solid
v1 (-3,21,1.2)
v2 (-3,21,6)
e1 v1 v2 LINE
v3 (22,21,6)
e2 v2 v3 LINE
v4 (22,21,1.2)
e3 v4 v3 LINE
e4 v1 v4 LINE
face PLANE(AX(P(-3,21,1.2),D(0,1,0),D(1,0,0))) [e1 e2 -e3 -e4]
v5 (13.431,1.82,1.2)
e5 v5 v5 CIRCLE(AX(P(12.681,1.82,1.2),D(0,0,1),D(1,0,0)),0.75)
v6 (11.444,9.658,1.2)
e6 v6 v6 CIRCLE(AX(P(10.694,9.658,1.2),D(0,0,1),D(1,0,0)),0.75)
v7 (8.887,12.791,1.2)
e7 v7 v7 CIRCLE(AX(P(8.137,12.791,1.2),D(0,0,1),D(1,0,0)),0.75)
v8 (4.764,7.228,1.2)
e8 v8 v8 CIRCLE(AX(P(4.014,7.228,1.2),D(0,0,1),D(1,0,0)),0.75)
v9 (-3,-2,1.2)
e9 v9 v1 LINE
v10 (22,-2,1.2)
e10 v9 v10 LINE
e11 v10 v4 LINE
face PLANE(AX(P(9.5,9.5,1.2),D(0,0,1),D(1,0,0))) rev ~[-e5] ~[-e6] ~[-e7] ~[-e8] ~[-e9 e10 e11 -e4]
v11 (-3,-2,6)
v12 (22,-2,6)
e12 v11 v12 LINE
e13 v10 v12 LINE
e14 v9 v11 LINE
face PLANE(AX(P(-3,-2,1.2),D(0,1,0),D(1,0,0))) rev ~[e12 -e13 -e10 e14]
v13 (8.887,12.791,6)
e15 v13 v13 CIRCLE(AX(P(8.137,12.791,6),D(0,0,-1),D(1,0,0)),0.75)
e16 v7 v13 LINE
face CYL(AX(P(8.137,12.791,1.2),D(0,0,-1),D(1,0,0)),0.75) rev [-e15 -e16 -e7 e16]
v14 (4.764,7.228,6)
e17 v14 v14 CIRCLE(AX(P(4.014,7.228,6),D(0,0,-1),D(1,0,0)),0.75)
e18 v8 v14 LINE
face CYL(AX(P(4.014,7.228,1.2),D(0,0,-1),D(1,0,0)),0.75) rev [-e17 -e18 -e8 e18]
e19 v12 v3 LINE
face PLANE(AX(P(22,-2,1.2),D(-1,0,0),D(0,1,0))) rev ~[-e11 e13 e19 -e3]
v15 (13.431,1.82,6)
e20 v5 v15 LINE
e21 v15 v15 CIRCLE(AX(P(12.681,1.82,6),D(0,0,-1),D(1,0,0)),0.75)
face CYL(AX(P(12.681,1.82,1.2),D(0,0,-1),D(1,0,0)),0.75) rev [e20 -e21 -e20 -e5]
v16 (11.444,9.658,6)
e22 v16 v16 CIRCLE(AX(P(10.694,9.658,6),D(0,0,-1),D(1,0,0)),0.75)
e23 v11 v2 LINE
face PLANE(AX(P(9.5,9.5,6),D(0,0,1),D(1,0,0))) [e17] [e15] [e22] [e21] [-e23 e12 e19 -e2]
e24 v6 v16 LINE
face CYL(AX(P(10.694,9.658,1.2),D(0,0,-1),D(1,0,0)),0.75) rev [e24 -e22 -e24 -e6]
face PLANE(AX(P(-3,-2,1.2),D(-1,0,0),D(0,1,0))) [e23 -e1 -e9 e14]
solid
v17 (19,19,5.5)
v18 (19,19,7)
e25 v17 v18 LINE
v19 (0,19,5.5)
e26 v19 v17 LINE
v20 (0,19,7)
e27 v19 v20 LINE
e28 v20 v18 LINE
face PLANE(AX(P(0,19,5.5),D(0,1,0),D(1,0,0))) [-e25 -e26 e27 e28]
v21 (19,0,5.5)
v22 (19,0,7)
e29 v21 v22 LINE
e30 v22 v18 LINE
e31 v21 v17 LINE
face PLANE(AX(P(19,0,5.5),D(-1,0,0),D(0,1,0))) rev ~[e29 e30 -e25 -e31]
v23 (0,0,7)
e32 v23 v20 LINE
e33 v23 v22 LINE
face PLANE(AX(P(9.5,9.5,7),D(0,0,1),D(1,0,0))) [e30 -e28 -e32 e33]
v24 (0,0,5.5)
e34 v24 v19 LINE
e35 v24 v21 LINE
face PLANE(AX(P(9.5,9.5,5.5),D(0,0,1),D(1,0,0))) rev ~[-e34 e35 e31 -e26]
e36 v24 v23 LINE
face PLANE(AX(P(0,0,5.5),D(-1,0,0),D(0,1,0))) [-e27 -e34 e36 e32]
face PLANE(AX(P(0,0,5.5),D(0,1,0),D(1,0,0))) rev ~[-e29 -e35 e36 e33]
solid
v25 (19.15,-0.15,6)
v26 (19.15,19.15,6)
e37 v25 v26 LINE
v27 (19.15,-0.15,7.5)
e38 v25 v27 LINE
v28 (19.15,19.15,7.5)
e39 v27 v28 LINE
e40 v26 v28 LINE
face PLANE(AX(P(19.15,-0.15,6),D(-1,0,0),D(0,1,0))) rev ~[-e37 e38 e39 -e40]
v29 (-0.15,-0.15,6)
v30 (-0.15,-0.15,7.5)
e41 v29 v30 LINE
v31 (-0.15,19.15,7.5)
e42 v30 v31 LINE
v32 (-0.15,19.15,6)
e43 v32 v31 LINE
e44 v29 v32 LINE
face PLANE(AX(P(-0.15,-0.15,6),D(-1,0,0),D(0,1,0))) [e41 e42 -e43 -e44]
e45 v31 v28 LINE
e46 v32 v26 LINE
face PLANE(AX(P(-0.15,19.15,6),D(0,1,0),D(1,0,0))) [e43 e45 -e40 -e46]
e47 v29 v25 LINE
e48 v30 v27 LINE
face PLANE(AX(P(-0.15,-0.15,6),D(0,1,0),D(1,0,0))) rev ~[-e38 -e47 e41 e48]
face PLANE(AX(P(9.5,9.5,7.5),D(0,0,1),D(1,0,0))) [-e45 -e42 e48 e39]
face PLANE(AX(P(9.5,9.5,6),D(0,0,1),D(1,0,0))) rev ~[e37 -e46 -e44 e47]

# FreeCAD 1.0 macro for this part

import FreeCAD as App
import Part
import Sketcher

V = App.Vector
Q = App.Units.Quantity


def add_polygon(sketch, points):
    """Adds a closed chain of lines whose ends are joined by coincident constraints."""
    first, n = sketch.GeometryCount, len(points)
    for a, b in zip(points, points[1:] + points[:1]):
        sketch.addGeometry(Part.LineSegment(App.Vector(*a, 0), App.Vector(*b, 0)), False)
    for i in range(n):
        sketch.addConstraint(Sketcher.Constraint("Coincident", first + i, 2, first + (i + 1) % n, 1))

doc = App.newDocument("Part")
body = doc.addObject("PartDesign::Body", "Body")

# Sketch on XY plane
sketch1 = body.newObject("Sketcher::SketchObject", "Sketch")
sketch1.AttachmentSupport = (doc.getObject("XY_Plane"), [""])
sketch1.MapMode = "FlatFace"
sketch1.AttachmentOffset = App.Placement(V(0, 0, 5.5), App.Rotation())
add_polygon(sketch1, [(0, 19), (0, 0), (19, 0), (19, 19)])  # lines 0-3
sketch1.addConstraint([
    Sketcher.Constraint("Vertical", 0),
    Sketcher.Constraint("Horizontal", 1),
    Sketcher.Constraint("Vertical", 2),
    Sketcher.Constraint("Horizontal", 3),
    Sketcher.Constraint("Coincident", 0, 2, -1, 1),
    Sketcher.Constraint("Equal", 3, 0),
    Sketcher.Constraint("DistanceX", 1, 1, 1, 2, Q("19 mm")),
])
pad1 = body.newObject("PartDesign::Pad", "Pad")
pad1.Profile = sketch1
pad1.Length = 1.5
body2 = doc.addObject("PartDesign::Body", "Body001")

# Sketch on XY plane
sketch2 = body2.newObject("Sketcher::SketchObject", "Sketch001")
sketch2.AttachmentSupport = (doc.getObject("XY_Plane001"), [""])
sketch2.MapMode = "FlatFace"
sketch2.AttachmentOffset = App.Placement(V(0, 0, 6), App.Rotation())
add_polygon(sketch2, [(0, 19), (0, 0), (19, 0), (19, 19)])  # lines 0-3
sketch2.addConstraint([
    Sketcher.Constraint("Vertical", 0),
    Sketcher.Constraint("Horizontal", 1),
    Sketcher.Constraint("Vertical", 2),
    Sketcher.Constraint("Horizontal", 3),
    Sketcher.Constraint("Equal", 3, 0),
    Sketcher.Constraint("DistanceX", 1, 1, 1, 2, Q("19.3 mm")),
    Sketcher.Constraint("DistanceX", 0, 2, -1, 1, Q("0.15 mm")),
    Sketcher.Constraint("DistanceY", 0, 2, -1, 1, Q("0.15 mm")),
])
pad2 = body2.newObject("PartDesign::Pad", "Pad001")
pad2.Profile = sketch2
pad2.Length = 1.5
body3 = doc.addObject("PartDesign::Body", "Body002")

# Sketch on XY plane
sketch3 = body3.newObject("Sketcher::SketchObject", "Sketch002")
sketch3.AttachmentSupport = (doc.getObject("XY_Plane002"), [""])
sketch3.MapMode = "FlatFace"
sketch3.AttachmentOffset = App.Placement(V(0, 0, 1.2), App.Rotation())
sketch3.addGeometry(Part.Circle(V(12.7, 1.8, 0), V(0, 0, 1), 0.8), False)
sketch3.addConstraint([
    Sketcher.Constraint("Diameter", 0, Q("1.5 mm")),
    Sketcher.Constraint("DistanceY", -1, 1, 0, 3, Q("1.82 mm")),
    Sketcher.Constraint("DistanceX", -1, 1, 0, 3, Q("12.681 mm")),
])
pad3 = body3.newObject("PartDesign::Pad", "Pad002")
pad3.Profile = sketch3
pad3.Length = 5.8
body4 = doc.addObject("PartDesign::Body", "Body003")

# Sketch on XY plane
sketch4 = body4.newObject("Sketcher::SketchObject", "Sketch003")
sketch4.AttachmentSupport = (doc.getObject("XY_Plane003"), [""])
sketch4.MapMode = "FlatFace"
sketch4.AttachmentOffset = App.Placement(V(0, 0, 1.2), App.Rotation())
sketch4.addGeometry(Part.Circle(V(10.7, 9.7, 0), V(0, 0, 1), 0.8), False)
sketch4.addConstraint([
    Sketcher.Constraint("Diameter", 0, Q("1.5 mm")),
    Sketcher.Constraint("DistanceX", -1, 1, 0, 3, Q("10.694 mm")),
    Sketcher.Constraint("DistanceY", -1, 1, 0, 3, Q("9.658 mm")),
])
pad4 = body4.newObject("PartDesign::Pad", "Pad003")
pad4.Profile = sketch4
pad4.Length = 5.8
body5 = doc.addObject("PartDesign::Body", "Body004")

# Sketch on XY plane
sketch5 = body5.newObject("Sketcher::SketchObject", "Sketch004")
sketch5.AttachmentSupport = (doc.getObject("XY_Plane004"), [""])
sketch5.MapMode = "FlatFace"
sketch5.AttachmentOffset = App.Placement(V(0, 0, 1.2), App.Rotation())
sketch5.addGeometry(Part.Circle(V(4, 7.2, 0), V(0, 0, 1), 0.8), False)
sketch5.addConstraint([
    Sketcher.Constraint("Diameter", 0, Q("1.5 mm")),
    Sketcher.Constraint("DistanceX", -1, 1, 0, 3, Q("4.014 mm")),
    Sketcher.Constraint("DistanceY", -1, 1, 0, 3, Q("7.228 mm")),
])
pad5 = body5.newObject("PartDesign::Pad", "Pad004")
pad5.Profile = sketch5
pad5.Length = 5.8
body6 = doc.addObject("PartDesign::Body", "Body005")
body6.AllowCompound = True

# Sketch on XY plane
sketch6 = body6.newObject("Sketcher::SketchObject", "Sketch005")
sketch6.AttachmentSupport = (doc.getObject("XY_Plane005"), [""])
sketch6.MapMode = "FlatFace"
sketch6.AttachmentOffset = App.Placement(V(0, 0, 1.2), App.Rotation())
sketch6.addGeometry(Part.Circle(V(8.1, 12.8, 0), V(0, 0, 1), 0.8), False)
sketch6.addConstraint([
    Sketcher.Constraint("Diameter", 0, Q("1.5 mm")),
    Sketcher.Constraint("DistanceX", -1, 1, 0, 3, Q("8.137 mm")),
    Sketcher.Constraint("DistanceY", -1, 1, 0, 3, Q("12.791 mm")),
])
pad6 = body6.newObject("PartDesign::Pad", "Pad005")
pad6.Profile = sketch6
pad6.Length = 5.8
doc.recompute()

boolean = body6.newObject("PartDesign::Boolean", "Boolean")
boolean.Type = "Fuse"
boolean.addObjects([body3])
doc.recompute()

boolean2 = body6.newObject("PartDesign::Boolean", "Boolean001")
boolean2.Type = "Fuse"
boolean2.addObjects([body4])
doc.recompute()

boolean3 = body6.newObject("PartDesign::Boolean", "Boolean002")
boolean3.Type = "Fuse"
boolean3.addObjects([body5])
body7 = doc.addObject("PartDesign::Body", "Body006")

# Sketch on XY plane
sketch7 = body7.newObject("Sketcher::SketchObject", "Sketch006")
sketch7.AttachmentSupport = (doc.getObject("XY_Plane006"), [""])
sketch7.MapMode = "FlatFace"
sketch7.AttachmentOffset = App.Placement(V(0, 0, 1.2), App.Rotation())
add_polygon(sketch7, [(-3, 21), (-3, -2), (22, -2), (22, 21)])  # lines 0-3
sketch7.addConstraint([
    Sketcher.Constraint("Vertical", 0),
    Sketcher.Constraint("Horizontal", 1),
    Sketcher.Constraint("Vertical", 2),
    Sketcher.Constraint("Horizontal", 3),
    Sketcher.Constraint("DistanceX", 1, 1, 1, 2, Q("25 mm")),
    Sketcher.Constraint("DistanceY", 0, 2, 0, 1, Q("23 mm")),
    Sketcher.Constraint("DistanceX", 0, 2, -1, 1, Q("3 mm")),
    Sketcher.Constraint("DistanceY", 0, 2, -1, 1, Q("2 mm")),
])
pad7 = body7.newObject("PartDesign::Pad", "Pad006")
pad7.Profile = sketch7
pad7.Length = 4.8
doc.recompute()

boolean4 = body7.newObject("PartDesign::Boolean", "Boolean003")
boolean4.Type = "Cut"
boolean4.addObjects([body6])

doc.recompute()
